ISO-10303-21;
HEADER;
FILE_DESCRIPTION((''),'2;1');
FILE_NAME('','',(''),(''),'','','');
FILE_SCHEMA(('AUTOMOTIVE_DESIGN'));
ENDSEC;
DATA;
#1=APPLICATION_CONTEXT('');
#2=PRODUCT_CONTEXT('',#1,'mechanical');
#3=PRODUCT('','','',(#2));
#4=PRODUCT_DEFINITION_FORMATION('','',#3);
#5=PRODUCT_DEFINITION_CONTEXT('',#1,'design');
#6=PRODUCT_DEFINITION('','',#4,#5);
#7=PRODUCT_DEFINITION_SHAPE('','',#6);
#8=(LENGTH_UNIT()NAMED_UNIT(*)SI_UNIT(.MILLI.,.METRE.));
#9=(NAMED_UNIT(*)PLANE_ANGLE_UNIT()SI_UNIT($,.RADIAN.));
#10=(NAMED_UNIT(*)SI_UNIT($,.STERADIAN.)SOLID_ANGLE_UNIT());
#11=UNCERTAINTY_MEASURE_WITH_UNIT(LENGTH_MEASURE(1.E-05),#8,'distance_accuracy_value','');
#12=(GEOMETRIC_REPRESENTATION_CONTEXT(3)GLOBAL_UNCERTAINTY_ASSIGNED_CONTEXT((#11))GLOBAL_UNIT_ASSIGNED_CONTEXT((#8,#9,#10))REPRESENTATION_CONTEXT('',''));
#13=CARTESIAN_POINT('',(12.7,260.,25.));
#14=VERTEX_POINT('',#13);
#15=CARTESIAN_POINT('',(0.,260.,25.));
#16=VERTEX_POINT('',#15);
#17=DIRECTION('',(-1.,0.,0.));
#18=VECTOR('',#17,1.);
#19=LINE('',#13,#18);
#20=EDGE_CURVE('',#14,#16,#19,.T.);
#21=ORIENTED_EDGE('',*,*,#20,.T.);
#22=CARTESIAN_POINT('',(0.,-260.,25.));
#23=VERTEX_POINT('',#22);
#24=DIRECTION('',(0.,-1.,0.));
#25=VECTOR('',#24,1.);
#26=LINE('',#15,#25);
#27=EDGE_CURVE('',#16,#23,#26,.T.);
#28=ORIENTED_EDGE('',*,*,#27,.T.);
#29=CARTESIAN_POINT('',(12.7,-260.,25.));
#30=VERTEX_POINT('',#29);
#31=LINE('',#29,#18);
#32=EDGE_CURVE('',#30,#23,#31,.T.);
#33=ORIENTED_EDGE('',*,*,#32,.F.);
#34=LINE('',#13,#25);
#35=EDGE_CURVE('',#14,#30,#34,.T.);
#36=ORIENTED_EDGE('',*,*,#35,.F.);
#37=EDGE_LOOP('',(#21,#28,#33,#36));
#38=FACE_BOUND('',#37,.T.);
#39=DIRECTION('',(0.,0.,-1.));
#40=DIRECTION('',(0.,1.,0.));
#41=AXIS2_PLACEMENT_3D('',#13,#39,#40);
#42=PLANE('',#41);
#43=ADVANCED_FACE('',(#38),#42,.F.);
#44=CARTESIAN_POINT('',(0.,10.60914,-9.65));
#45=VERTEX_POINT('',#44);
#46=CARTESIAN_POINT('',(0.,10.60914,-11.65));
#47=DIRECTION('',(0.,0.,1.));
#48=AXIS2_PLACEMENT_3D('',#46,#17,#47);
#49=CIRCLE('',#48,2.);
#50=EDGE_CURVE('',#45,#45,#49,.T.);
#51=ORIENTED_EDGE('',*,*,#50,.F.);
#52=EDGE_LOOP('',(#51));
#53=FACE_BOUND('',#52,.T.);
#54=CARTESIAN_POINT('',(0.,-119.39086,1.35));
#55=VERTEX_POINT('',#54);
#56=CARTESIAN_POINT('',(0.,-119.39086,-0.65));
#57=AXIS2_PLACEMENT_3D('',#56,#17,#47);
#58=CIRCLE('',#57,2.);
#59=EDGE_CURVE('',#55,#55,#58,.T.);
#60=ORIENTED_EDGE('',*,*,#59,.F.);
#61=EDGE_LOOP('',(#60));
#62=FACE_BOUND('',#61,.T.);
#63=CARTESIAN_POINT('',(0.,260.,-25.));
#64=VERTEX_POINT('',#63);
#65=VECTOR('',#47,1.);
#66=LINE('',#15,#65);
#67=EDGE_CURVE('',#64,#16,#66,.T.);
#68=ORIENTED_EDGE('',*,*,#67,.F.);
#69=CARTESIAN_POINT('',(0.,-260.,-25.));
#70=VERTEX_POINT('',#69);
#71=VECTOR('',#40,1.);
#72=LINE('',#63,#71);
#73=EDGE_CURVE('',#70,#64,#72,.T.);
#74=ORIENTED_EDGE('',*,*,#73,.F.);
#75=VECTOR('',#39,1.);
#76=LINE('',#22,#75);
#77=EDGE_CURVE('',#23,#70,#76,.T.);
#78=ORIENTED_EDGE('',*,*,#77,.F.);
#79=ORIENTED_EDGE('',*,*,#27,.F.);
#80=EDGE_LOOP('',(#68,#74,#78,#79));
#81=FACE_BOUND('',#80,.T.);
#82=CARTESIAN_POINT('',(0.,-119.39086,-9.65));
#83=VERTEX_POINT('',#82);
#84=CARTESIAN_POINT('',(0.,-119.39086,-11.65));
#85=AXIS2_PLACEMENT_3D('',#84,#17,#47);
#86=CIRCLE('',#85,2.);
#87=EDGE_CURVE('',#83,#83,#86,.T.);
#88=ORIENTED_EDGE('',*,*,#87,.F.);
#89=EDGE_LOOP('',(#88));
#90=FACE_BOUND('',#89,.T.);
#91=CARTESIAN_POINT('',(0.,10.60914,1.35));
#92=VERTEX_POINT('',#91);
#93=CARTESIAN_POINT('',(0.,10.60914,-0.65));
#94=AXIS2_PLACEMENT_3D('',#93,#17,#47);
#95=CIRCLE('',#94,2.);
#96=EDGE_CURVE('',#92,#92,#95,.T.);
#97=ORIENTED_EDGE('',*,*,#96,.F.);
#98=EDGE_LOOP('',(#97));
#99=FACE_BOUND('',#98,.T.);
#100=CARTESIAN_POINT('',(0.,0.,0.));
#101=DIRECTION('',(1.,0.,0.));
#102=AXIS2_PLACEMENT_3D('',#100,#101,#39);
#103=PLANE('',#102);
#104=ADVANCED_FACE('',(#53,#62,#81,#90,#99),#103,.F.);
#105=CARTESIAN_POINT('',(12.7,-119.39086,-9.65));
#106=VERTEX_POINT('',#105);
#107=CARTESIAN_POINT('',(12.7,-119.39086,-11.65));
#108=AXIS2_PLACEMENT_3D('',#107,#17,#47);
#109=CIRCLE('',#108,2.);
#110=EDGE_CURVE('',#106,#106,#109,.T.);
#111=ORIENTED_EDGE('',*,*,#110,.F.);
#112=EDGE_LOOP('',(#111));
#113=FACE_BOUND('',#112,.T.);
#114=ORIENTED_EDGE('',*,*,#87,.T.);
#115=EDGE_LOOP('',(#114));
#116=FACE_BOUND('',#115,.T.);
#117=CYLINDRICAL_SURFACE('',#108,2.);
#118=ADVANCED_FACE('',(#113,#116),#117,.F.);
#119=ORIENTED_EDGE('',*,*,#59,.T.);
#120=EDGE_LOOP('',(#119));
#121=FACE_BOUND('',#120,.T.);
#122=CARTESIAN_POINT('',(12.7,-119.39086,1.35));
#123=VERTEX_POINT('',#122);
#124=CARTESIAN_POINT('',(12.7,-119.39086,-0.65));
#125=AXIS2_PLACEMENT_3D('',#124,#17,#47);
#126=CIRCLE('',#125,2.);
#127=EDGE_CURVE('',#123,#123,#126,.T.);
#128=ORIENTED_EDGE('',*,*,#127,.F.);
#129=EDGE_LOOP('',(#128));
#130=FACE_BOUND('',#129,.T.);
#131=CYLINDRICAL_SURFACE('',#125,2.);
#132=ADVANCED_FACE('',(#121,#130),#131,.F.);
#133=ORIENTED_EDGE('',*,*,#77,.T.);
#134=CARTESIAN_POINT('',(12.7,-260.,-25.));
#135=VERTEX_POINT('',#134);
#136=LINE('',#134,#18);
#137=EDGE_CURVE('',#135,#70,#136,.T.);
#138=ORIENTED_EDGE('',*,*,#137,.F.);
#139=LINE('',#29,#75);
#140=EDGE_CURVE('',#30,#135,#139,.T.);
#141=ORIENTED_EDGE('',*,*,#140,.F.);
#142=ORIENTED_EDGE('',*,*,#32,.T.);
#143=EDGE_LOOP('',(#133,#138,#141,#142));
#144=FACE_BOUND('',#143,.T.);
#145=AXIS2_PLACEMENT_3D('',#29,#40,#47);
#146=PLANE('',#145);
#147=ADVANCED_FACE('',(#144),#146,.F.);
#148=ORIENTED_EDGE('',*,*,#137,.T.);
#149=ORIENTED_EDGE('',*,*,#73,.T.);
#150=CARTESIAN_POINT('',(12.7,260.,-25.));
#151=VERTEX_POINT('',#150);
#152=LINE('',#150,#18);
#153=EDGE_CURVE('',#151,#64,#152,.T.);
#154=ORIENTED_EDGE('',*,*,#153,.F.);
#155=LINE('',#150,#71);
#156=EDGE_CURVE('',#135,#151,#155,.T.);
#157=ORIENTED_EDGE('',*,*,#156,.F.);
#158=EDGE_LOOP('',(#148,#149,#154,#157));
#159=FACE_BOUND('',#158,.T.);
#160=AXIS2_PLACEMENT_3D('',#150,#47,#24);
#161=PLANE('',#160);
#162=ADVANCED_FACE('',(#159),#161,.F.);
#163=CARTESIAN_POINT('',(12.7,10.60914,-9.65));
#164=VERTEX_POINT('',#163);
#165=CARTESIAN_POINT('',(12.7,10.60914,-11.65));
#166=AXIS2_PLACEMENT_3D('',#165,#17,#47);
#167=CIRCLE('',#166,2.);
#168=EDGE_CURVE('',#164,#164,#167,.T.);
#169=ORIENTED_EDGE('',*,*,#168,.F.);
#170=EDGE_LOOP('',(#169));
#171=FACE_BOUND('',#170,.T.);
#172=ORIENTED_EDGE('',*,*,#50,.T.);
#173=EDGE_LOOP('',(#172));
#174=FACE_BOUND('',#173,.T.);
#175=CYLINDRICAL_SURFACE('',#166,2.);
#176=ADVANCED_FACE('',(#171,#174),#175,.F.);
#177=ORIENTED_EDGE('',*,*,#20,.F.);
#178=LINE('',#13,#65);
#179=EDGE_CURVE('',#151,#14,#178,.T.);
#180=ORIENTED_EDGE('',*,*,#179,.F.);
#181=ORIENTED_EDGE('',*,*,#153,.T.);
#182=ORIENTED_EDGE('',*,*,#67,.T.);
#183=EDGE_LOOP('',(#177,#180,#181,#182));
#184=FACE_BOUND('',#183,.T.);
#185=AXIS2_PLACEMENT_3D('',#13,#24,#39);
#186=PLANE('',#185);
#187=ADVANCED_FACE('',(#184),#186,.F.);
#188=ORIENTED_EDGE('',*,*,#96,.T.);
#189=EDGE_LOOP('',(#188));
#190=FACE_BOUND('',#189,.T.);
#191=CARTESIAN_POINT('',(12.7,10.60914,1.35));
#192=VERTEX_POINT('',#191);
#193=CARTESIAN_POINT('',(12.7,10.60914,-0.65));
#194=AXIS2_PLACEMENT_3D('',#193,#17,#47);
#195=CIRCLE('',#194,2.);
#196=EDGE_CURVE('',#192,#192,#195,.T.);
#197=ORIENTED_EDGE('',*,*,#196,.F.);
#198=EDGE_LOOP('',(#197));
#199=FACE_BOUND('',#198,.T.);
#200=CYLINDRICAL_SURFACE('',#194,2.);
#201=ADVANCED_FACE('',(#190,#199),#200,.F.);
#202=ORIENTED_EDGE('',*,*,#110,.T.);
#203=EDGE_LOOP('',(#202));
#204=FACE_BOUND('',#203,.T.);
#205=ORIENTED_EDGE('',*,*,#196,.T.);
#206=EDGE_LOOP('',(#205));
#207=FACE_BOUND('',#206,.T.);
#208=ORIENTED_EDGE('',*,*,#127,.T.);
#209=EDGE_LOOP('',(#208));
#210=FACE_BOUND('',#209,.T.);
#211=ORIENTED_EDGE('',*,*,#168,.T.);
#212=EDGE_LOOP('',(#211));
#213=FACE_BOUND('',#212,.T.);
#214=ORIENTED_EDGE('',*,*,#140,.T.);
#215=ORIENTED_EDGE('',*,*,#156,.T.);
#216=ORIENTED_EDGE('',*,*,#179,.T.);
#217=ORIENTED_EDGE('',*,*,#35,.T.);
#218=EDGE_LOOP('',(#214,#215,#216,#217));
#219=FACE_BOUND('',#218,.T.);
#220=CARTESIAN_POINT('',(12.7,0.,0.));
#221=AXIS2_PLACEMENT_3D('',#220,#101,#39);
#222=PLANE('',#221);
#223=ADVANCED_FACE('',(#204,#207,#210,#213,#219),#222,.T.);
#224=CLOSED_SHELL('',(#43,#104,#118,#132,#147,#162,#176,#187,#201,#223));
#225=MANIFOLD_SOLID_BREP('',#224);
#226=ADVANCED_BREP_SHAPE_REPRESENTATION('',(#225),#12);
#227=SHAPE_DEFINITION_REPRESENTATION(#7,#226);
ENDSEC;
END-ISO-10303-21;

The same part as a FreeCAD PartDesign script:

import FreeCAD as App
import Part
import Sketcher

V = App.Vector


def add_polygon(sketch, points):
    """Adds a closed chain of lines whose ends are joined by coincident constraints."""
    first, n = sketch.GeometryCount, len(points)
    for a, b in zip(points, points[1:] + points[:1]):
        sketch.addGeometry(Part.LineSegment(App.Vector(*a, 0), App.Vector(*b, 0)), False)
    for i in range(n):
        sketch.addConstraint(Sketcher.Constraint("Coincident", first + i, 2, first + (i + 1) % n, 1))

doc = App.newDocument("Part")
body = doc.addObject("PartDesign::Body", "Body")

# Sketch on YZ plane
sketch1 = body.newObject("Sketcher::SketchObject", "Sketch")
sketch1.AttachmentSupport = (doc.getObject("YZ_Plane"), [""])
sketch1.MapMode = "FlatFace"
add_polygon(sketch1, [(260, 25), (-260, 25), (-260, -25), (260, -25)])  # lines 0-3
sketch1.addConstraint([
    Sketcher.Constraint("Horizontal", 0),
    Sketcher.Constraint("Vertical", 1),
    Sketcher.Constraint("Horizontal", 2),
    Sketcher.Constraint("Vertical", 3),
    Sketcher.Constraint("Symmetric", 0, 2, 2, 2, -1, 1),
    Sketcher.Constraint("DistanceX", 0, 2, 0, 1, 520.0),
    Sketcher.Constraint("DistanceY", 1, 2, 1, 1, 50.0),
])
pad1 = body.newObject("PartDesign::Pad", "Pad")
pad1.Profile = sketch1
pad1.Length = 12.7

# Sketch on YZ plane
sketch2 = body.newObject("Sketcher::SketchObject", "Sketch001")
sketch2.AttachmentSupport = (doc.getObject("YZ_Plane"), [""])
sketch2.MapMode = "FlatFace"
sketch2.addGeometry([
    Part.Circle(V(10.60914, -11.65, 0), V(0, 0, 1), 2),
    Part.Circle(V(10.60914, -0.65, 0), V(0, 0, 1), 2),
    Part.Circle(V(-119.39086, -11.65, 0), V(0, 0, 1), 2),
    Part.Circle(V(-119.39086, -0.65, 0), V(0, 0, 1), 2),
], False)
sketch2.addConstraint([
    Sketcher.Constraint("Equal", 0, 1),
    Sketcher.Constraint("Equal", 1, 2),
    Sketcher.Constraint("Equal", 2, 3),
    Sketcher.Constraint("Horizontal", 0, 3, 2, 3),
    Sketcher.Constraint("Horizontal", 1, 3, 3, 3),
    Sketcher.Constraint("Vertical", 0, 3, 1, 3),
    Sketcher.Constraint("Vertical", 2, 3, 3, 3),
    Sketcher.Constraint("Diameter", 0, 4.0),
    Sketcher.Constraint("DistanceY", 0, 3, 1, 3, 11.0),
    Sketcher.Constraint("DistanceX", 2, 3, 0, 3, 130.0),
    Sketcher.Constraint("DistanceY", 0, 3, -1, 1, 11.65),
    Sketcher.Constraint("DistanceX", -1, 1, 0, 3, 10.60914),
])
pocket1 = body.newObject("PartDesign::Pocket", "Pocket")
pocket1.Profile = sketch2
pocket1.Type = "ThroughAll"
pocket1.Reversed = True

doc.recompute()
